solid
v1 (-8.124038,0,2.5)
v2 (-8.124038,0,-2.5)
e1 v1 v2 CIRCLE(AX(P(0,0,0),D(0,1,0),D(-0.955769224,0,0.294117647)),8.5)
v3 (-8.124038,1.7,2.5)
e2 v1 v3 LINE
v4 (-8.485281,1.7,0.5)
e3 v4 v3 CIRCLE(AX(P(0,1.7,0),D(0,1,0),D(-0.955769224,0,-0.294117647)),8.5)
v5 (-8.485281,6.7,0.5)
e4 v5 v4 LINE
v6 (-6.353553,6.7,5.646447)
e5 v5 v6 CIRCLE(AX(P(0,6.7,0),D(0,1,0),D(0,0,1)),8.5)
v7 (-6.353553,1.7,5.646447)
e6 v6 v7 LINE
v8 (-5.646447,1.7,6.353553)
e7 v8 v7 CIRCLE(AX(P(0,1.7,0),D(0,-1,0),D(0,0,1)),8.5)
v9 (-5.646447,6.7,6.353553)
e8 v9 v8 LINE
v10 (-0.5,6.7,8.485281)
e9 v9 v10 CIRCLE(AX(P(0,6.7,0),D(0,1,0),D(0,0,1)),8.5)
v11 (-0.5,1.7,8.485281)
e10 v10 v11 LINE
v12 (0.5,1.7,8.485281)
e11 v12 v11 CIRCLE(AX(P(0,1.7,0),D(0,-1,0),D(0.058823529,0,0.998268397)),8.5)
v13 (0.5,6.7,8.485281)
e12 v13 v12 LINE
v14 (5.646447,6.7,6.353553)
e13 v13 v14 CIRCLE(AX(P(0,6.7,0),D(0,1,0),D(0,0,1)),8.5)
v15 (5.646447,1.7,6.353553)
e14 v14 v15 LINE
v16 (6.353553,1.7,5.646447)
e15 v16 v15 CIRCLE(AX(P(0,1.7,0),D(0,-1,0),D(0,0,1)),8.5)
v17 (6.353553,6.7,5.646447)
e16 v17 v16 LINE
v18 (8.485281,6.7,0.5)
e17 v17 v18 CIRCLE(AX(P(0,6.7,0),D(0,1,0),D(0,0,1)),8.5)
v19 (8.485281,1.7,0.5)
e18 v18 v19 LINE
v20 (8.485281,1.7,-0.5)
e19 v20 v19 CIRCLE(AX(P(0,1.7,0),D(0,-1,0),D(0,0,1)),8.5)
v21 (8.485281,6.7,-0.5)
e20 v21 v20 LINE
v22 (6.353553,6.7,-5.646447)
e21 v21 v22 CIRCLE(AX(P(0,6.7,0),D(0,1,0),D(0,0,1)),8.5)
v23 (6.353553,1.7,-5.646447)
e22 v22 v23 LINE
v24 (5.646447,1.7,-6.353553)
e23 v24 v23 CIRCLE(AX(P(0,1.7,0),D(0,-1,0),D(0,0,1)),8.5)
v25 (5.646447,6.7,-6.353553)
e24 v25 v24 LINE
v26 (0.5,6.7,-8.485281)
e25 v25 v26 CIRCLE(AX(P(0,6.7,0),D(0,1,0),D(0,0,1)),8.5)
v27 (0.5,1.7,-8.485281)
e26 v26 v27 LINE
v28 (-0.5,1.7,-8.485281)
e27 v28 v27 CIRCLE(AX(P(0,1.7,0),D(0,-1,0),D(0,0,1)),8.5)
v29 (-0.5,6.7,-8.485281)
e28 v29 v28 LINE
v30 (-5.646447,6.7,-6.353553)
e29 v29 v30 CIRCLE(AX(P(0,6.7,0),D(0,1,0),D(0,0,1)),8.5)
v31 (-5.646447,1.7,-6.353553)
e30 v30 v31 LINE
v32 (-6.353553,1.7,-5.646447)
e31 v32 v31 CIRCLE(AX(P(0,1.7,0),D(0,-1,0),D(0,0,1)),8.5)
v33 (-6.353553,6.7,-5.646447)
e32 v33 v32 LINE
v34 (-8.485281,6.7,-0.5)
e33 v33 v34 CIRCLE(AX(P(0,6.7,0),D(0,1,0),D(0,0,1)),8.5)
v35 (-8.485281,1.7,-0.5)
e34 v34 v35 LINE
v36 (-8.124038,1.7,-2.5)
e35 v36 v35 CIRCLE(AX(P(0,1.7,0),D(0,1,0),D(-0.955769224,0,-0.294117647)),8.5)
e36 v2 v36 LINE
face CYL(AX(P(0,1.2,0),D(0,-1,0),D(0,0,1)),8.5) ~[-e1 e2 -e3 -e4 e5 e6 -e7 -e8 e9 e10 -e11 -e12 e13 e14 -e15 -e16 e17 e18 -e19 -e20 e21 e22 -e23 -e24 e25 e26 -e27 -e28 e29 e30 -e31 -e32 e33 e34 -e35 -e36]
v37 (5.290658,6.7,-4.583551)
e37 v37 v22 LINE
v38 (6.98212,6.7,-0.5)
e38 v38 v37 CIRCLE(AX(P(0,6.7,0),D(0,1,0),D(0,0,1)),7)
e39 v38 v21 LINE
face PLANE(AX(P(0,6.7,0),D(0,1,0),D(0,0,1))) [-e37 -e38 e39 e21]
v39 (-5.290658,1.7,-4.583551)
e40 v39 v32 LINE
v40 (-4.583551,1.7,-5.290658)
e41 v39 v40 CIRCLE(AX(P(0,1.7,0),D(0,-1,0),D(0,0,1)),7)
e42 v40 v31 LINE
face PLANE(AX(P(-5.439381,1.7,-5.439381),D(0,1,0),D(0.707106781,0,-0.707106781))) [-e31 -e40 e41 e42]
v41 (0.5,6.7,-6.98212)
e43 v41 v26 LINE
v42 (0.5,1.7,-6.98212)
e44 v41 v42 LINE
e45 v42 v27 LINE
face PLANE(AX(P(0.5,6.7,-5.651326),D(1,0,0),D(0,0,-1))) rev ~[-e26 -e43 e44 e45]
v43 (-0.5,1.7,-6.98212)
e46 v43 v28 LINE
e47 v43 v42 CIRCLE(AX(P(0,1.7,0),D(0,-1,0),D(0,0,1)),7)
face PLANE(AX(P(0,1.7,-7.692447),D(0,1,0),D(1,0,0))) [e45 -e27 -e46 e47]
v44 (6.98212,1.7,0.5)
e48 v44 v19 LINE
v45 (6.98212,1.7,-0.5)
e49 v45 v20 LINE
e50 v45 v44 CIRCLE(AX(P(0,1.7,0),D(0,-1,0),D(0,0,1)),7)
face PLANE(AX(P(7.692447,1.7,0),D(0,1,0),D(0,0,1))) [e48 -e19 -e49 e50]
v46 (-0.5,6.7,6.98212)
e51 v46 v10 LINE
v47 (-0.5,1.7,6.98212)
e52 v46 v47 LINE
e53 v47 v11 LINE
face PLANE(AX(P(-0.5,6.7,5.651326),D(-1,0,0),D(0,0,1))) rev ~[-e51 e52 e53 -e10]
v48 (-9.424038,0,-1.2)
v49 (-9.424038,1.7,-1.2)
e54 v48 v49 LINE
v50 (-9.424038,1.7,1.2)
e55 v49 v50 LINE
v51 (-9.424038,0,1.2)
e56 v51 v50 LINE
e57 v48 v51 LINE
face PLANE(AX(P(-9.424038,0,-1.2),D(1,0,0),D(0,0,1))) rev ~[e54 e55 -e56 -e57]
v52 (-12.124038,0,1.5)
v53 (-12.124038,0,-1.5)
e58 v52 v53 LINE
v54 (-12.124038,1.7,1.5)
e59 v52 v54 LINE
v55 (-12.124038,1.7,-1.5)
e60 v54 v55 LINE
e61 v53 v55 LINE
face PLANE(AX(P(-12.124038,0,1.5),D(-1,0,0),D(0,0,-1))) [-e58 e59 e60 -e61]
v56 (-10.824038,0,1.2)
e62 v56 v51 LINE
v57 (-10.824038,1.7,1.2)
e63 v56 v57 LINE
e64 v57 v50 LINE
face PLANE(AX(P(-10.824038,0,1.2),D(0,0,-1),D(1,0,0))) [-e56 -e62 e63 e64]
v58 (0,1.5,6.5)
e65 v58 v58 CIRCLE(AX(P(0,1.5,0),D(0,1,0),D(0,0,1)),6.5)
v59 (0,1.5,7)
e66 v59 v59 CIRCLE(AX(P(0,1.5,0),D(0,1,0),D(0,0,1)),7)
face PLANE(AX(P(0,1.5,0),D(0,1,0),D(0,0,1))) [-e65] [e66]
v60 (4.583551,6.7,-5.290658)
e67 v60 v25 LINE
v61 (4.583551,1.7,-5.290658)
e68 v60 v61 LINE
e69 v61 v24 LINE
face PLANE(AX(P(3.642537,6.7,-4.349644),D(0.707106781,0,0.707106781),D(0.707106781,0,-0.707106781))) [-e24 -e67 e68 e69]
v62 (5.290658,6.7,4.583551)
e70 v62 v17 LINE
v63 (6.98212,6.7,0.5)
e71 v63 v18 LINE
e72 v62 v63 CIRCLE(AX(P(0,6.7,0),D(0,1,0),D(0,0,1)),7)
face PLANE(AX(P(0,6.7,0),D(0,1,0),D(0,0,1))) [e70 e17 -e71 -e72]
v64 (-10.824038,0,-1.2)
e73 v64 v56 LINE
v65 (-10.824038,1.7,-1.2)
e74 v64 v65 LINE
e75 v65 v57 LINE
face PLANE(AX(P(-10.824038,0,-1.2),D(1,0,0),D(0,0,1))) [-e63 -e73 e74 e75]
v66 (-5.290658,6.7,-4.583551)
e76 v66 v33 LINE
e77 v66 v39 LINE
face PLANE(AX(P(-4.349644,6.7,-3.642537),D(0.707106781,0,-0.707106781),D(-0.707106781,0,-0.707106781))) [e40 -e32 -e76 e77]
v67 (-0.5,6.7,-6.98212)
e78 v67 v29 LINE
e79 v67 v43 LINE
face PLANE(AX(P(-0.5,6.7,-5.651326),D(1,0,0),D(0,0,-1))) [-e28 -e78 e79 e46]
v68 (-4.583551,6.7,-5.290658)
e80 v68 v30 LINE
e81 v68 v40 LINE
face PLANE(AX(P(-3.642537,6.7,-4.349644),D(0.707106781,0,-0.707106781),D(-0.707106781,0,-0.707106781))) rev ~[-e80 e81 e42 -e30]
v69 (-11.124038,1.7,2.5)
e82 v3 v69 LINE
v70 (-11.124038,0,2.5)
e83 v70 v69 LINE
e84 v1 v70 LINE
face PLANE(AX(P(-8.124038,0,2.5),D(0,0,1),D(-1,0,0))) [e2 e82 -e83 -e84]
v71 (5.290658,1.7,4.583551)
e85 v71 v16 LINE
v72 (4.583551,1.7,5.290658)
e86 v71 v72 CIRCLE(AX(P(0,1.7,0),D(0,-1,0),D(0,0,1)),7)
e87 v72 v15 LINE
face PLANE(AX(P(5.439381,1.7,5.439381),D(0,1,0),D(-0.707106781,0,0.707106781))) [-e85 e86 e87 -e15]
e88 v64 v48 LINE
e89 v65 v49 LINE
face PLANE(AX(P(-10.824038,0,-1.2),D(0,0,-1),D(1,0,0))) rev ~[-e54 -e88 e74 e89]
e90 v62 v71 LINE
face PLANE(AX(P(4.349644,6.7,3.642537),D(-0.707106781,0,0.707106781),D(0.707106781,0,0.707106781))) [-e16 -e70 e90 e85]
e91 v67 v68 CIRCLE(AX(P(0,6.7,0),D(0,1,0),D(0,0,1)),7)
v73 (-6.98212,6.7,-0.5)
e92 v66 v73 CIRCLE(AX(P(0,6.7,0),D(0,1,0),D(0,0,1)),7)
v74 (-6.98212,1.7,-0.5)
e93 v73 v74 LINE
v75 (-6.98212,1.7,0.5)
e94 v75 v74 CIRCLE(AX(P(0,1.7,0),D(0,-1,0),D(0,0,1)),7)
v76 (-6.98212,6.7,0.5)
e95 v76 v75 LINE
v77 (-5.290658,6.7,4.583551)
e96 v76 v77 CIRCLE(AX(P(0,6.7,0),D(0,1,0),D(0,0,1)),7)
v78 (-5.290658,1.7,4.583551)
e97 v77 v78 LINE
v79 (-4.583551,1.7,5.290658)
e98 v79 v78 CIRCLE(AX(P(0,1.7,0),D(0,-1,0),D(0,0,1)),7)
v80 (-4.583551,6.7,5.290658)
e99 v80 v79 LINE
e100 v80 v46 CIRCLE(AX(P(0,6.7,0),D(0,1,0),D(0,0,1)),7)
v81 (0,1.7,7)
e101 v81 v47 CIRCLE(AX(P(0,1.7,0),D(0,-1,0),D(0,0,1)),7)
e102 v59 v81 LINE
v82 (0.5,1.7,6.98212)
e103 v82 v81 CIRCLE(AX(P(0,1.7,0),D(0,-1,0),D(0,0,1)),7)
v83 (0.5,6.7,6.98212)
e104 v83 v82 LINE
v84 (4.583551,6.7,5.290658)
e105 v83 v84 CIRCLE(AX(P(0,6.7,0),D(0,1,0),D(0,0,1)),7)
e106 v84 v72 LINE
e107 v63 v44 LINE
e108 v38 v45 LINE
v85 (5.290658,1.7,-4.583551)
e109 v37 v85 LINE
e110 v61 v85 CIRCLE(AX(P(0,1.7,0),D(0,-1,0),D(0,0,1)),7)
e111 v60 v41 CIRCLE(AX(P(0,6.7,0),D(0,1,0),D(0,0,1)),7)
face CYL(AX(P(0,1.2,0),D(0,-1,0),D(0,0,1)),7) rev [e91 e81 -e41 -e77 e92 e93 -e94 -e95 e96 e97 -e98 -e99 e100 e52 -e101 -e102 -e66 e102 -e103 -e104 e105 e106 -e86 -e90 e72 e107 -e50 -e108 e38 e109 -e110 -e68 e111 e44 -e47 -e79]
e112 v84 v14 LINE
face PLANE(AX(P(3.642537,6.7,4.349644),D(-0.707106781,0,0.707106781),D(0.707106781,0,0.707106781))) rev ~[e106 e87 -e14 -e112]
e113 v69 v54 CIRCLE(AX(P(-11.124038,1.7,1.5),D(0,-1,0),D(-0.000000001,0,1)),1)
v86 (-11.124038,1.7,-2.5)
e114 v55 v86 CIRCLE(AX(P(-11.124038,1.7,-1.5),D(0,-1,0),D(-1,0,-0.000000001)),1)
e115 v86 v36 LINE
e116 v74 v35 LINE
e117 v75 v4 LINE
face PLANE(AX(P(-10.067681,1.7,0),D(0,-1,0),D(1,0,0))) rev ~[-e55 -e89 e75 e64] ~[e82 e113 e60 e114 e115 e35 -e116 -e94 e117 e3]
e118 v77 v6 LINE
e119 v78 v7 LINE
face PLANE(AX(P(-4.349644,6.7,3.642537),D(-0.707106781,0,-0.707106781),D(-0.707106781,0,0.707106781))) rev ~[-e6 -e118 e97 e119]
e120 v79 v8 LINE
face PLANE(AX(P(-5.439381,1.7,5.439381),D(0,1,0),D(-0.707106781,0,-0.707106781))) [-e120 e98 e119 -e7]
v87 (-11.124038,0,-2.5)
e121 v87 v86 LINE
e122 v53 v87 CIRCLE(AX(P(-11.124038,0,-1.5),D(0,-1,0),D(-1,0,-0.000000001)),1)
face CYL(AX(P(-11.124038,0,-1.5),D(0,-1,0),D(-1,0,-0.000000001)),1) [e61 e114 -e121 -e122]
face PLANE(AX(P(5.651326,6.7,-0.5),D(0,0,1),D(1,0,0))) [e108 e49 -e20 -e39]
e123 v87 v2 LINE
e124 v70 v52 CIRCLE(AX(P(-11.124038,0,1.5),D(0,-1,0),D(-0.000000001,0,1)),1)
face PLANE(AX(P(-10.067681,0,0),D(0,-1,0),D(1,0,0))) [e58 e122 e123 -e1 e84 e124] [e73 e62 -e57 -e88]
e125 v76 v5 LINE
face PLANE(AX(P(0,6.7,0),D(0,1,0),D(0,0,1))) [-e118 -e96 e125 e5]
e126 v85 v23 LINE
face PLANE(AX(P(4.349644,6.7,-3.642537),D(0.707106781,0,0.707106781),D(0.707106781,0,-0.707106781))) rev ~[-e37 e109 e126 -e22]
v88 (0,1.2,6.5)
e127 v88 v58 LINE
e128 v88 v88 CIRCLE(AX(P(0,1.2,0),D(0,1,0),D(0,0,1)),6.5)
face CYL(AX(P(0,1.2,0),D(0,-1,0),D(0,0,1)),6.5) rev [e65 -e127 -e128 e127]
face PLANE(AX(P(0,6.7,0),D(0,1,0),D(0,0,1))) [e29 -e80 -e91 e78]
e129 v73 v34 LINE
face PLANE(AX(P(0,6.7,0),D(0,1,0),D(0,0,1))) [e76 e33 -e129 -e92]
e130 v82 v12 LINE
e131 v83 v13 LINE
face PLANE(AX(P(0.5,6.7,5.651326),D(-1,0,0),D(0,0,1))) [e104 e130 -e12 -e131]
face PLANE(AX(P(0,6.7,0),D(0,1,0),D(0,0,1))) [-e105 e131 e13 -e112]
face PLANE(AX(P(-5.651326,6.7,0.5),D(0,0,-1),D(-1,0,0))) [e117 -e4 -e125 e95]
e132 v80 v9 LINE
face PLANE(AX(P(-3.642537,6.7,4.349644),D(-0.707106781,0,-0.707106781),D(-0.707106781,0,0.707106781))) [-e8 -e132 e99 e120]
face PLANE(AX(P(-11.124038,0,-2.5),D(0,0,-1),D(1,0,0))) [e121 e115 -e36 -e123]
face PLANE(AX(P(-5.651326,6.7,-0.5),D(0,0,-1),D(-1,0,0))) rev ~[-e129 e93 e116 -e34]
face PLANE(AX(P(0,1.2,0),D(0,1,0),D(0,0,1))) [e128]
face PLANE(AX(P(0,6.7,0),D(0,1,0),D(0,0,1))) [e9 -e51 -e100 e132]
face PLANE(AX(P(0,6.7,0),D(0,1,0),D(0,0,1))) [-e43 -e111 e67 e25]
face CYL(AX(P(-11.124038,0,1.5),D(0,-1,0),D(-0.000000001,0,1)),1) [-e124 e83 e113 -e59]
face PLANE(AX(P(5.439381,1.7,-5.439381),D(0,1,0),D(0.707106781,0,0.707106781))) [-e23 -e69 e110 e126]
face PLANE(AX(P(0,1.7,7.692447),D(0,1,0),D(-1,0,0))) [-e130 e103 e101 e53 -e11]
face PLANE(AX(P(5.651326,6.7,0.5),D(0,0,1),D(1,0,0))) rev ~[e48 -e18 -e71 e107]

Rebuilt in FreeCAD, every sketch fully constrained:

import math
import FreeCAD as App
import Part
import Sketcher

V = App.Vector
Q = App.Units.Quantity


def add_polygon(sketch, points):
    """Adds a closed chain of lines whose ends are joined by coincident constraints."""
    first, n = sketch.GeometryCount, len(points)
    for a, b in zip(points, points[1:] + points[:1]):
        sketch.addGeometry(Part.LineSegment(App.Vector(*a, 0), App.Vector(*b, 0)), False)
    for i in range(n):
        sketch.addConstraint(Sketcher.Constraint("Coincident", first + i, 2, first + (i + 1) % n, 1))

doc = App.newDocument("Part")
body = doc.addObject("PartDesign::Body", "Body")

# Sketch on XZ plane
sketch1 = body.newObject("Sketcher::SketchObject", "Sketch")
sketch1.AttachmentSupport = (doc.getObject("XZ_Plane"), [""])
sketch1.MapMode = "FlatFace"
sketch1.addGeometry(Part.Circle(V(0, 0, 0), V(0, 0, 1), 8), False)
sketch1.addConstraint([
    Sketcher.Constraint("Coincident", 0, 3, -1, 1),
    Sketcher.Constraint("Diameter", 0, Q("17 mm")),
])
pad1 = body.newObject("PartDesign::Pad", "Pad")
pad1.Profile = sketch1
pad1.Length = 1.2
pad1.Reversed = True

# Sketch on XZ plane
sketch2 = body.newObject("Sketcher::SketchObject", "Sketch001")
sketch2.AttachmentSupport = (doc.getObject("XZ_Plane"), [""])
sketch2.MapMode = "FlatFace"
sketch2.AttachmentOffset = App.Placement(V(0, 0, -1.2), App.Rotation())
sketch2.addGeometry([
    Part.Circle(V(0, 0, 0), V(0, 0, 1), 8),
    Part.Circle(V(0, 0, 0), V(0, 0, 1), 7),
], False)
sketch2.addConstraint([
    Sketcher.Constraint("Coincident", 0, 3, -1, 1),
    Sketcher.Constraint("Coincident", 1, 3, -1, 1),
    Sketcher.Constraint("Diameter", 0, Q("17 mm")),
    Sketcher.Constraint("Diameter", 1, Q("14 mm")),
])
pad2 = body.newObject("PartDesign::Pad", "Pad001")
pad2.Profile = sketch2
pad2.Length = 5.5
pad2.Reversed = True

# Sketch on XZ plane
sketch3 = body.newObject("Sketcher::SketchObject", "Sketch002")
sketch3.AttachmentSupport = (doc.getObject("XZ_Plane"), [""])
sketch3.MapMode = "FlatFace"
sketch3.AttachmentOffset = App.Placement(V(0, 0, -1.2), App.Rotation())
sketch3.addGeometry([
    Part.Circle(V(0, 0, 0), V(0, 0, 1), 7),
    Part.Circle(V(0, 0, 0), V(0, 0, 1), 6),
], False)
sketch3.addConstraint([
    Sketcher.Constraint("Coincident", 0, 3, -1, 1),
    Sketcher.Constraint("Coincident", 1, 3, -1, 1),
    Sketcher.Constraint("Diameter", 0, Q("14 mm")),
    Sketcher.Constraint("Diameter", 1, Q("13 mm")),
])
pad3 = body.newObject("PartDesign::Pad", "Pad002")
pad3.Profile = sketch3
pad3.Length = 0.3
pad3.Reversed = True

# Sketch on XZ plane
sketch4 = body.newObject("Sketcher::SketchObject", "Sketch003")
sketch4.AttachmentSupport = (doc.getObject("XZ_Plane"), [""])
sketch4.MapMode = "FlatFace"
sketch4.AttachmentOffset = App.Placement(V(0, 0, -6.7), App.Rotation())
add_polygon(sketch4, [(-0.5, -9.7), (-0.5, -5.7), (0.5, -5.7), (0.5, -9.7)])  # lines 0-3
sketch4.addConstraint([
    Sketcher.Constraint("Vertical", 0),
    Sketcher.Constraint("Horizontal", 1),
    Sketcher.Constraint("Vertical", 2),
    Sketcher.Constraint("Horizontal", 3),
    Sketcher.Constraint("DistanceX", 1, 1, 1, 2, Q("1 mm")),
    Sketcher.Constraint("DistanceX", 0, 2, -1, 1, Q("0.5 mm")),
    Sketcher.Constraint("DistanceY", 0, 1, 0, 2, Q("4.082243 mm")),
    Sketcher.Constraint("DistanceY", 2, 2, -1, 1, Q("9.733568 mm")),
])
pocket1 = body.newObject("PartDesign::Pocket", "Pocket")
pocket1.Profile = sketch4
pocket1.Length = 5
pocket1.Reversed = True
doc.recompute()

polarpattern = body.newObject("PartDesign::PolarPattern", "PolarPattern")
polarpattern.Originals = [pocket1]
polarpattern.Axis = (doc.getObject("Y_Axis"), [""])
polarpattern.Angle = 360
polarpattern.Occurrences = 8
body.Tip = polarpattern

# Sketch on XZ plane
sketch5 = body.newObject("Sketcher::SketchObject", "Sketch004")
sketch5.AttachmentSupport = (doc.getObject("XZ_Plane"), [""])
sketch5.MapMode = "FlatFace"
sketch5.addGeometry(Part.LineSegment(V(-11.1, -2.5, 0), V(-8.1, -2.5, 0)), False)  # 0
sketch5.addGeometry(Part.ArcOfCircle(Part.Circle(V(0, 0, 0), V(0, 0, 1), 8.5), math.radians(163), math.radians(197)), False)  # 1
sketch5.addGeometry(Part.LineSegment(V(-8.1, 2.5, 0), V(-11.1, 2.5, 0)), False)  # 2
sketch5.addGeometry(Part.ArcOfCircle(Part.Circle(V(-11.1, 1.5, 0), V(0, 0, 1), 1), math.radians(90), math.radians(180)), False)  # 3
sketch5.addGeometry(Part.LineSegment(V(-12.1, 1.5, 0), V(-12.1, -1.5, 0)), False)  # 4
sketch5.addGeometry(Part.ArcOfCircle(Part.Circle(V(-11.1, -1.5, 0), V(0, 0, 1), 1), math.radians(-180), math.radians(-90)), False)  # 5
add_polygon(sketch5, [(-9.4, -1.2), (-10.8, -1.2), (-10.8, 1.2), (-9.4, 1.2)])  # lines 6-9
sketch5.addConstraint([
    Sketcher.Constraint("Coincident", 0, 2, 1, 2),
    Sketcher.Constraint("Coincident", 1, 1, 2, 1),
    Sketcher.Constraint("Tangent", 2, 2, 3, 1),
    Sketcher.Constraint("Tangent", 3, 2, 4, 1),
    Sketcher.Constraint("Tangent", 4, 2, 5, 1),
    Sketcher.Constraint("Tangent", 5, 2, 0, 1),
    Sketcher.Constraint("Horizontal", 0),
    Sketcher.Constraint("Horizontal", 2),
    Sketcher.Constraint("Vertical", 4),
    Sketcher.Constraint("Horizontal", 6),
    Sketcher.Constraint("Vertical", 7),
    Sketcher.Constraint("Horizontal", 8),
    Sketcher.Constraint("Vertical", 9),
    Sketcher.Constraint("Coincident", 1, 3, -1, 1),
    Sketcher.Constraint("Equal", 3, 5),
    Sketcher.Constraint("Vertical", 0, 2, 1, 1),
    Sketcher.Constraint("Equal", 2, 4),
    Sketcher.Constraint("Radius", 3, Q("1 mm")),
    Sketcher.Constraint("Radius", 1, Q("8.5 mm")),
    Sketcher.Constraint("DistanceX", 0, 1, 0, 2, Q("3 mm")),
    Sketcher.Constraint("DistanceX", 6, 2, 6, 1, Q("1.4 mm")),
    Sketcher.Constraint("DistanceY", 7, 1, 7, 2, Q("2.4 mm")),
    Sketcher.Constraint("DistanceY", 6, 2, -1, 1, Q("1.2 mm")),
    Sketcher.Constraint("DistanceX", 5, 3, 6, 2, Q("0.3 mm")),
])
pad4 = body.newObject("PartDesign::Pad", "Pad003")
pad4.Profile = sketch5
pad4.Length = 1.7
pad4.Reversed = True

doc.recompute()
